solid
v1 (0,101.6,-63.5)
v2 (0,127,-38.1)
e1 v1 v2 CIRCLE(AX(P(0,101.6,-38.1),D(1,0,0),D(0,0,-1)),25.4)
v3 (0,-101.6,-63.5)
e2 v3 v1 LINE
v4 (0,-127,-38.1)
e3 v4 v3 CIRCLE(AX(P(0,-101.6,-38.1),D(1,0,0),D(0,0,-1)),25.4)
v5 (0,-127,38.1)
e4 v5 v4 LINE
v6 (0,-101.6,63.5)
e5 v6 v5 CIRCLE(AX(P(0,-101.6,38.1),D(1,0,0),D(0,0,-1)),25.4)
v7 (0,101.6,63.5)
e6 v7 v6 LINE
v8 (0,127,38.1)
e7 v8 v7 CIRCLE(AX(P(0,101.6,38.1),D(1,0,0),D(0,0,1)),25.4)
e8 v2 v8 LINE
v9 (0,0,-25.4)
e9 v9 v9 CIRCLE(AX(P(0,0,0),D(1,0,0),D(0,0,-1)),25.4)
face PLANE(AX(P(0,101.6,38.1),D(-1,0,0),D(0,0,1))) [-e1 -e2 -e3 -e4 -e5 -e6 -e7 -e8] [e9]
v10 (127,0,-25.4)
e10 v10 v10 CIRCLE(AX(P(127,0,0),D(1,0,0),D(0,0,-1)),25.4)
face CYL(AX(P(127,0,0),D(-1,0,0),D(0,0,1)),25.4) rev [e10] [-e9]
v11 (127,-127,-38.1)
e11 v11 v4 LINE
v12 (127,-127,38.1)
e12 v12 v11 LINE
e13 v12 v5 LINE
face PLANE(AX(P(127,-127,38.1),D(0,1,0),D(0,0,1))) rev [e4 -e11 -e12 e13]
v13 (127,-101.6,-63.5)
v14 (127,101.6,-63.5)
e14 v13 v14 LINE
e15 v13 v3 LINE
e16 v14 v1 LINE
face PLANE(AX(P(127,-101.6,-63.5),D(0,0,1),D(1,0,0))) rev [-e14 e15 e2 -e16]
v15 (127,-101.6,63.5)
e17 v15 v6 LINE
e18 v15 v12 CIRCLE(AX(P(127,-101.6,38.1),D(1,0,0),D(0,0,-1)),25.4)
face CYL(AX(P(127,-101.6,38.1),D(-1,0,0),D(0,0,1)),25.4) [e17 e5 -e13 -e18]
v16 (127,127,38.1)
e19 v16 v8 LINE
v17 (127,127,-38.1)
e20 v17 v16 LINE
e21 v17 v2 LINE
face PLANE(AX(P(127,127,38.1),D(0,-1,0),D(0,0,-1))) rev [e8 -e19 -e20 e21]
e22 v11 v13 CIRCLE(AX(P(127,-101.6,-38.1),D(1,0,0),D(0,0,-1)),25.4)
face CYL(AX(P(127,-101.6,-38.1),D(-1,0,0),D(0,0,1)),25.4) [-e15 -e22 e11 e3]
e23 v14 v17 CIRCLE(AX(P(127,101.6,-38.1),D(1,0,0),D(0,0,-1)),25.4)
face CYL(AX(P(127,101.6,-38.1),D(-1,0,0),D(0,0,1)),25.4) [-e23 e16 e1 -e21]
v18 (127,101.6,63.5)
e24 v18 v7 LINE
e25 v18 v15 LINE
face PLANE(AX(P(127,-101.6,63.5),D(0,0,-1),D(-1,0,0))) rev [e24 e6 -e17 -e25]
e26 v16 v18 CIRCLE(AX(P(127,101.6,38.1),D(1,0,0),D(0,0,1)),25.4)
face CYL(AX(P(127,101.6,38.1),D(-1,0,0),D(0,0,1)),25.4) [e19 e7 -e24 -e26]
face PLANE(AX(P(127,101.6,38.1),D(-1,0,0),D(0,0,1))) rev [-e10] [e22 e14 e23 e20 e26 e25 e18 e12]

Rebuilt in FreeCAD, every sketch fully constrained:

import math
import FreeCAD as App
import Part
import Sketcher

V = App.Vector
Q = App.Units.Quantity

doc = App.newDocument("Part")
body = doc.addObject("PartDesign::Body", "Body")

sketch1 = body.newObject("Sketcher::SketchObject", "Sketch")
sketch1.AttachmentSupport = (doc.getObject("YZ_Plane"), [""])
sketch1.MapMode = "FlatFace"
sketch1.addGeometry([
    Part.LineSegment(V(102, 64, 0), V(-102, 64, 0)),
    Part.ArcOfCircle(Part.Circle(V(-102, 38, 0), V(0, 0, 1), 25), math.radians(90), math.radians(180)),
    Part.LineSegment(V(-127, 38, 0), V(-127, -38, 0)),
    Part.ArcOfCircle(Part.Circle(V(-102, -38, 0), V(0, 0, 1), 25), math.radians(180), math.radians(270)),
    Part.LineSegment(V(-102, -64, 0), V(102, -64, 0)),
    Part.ArcOfCircle(Part.Circle(V(102, -38, 0), V(0, 0, 1), 25), math.radians(-90), math.radians(0)),
    Part.LineSegment(V(127, -38, 0), V(127, 38, 0)),
    Part.ArcOfCircle(Part.Circle(V(102, 38, 0), V(0, 0, 1), 25), math.radians(0), math.radians(90)),
    Part.Circle(V(0, 0, 0), V(0, 0, 1), 25),
], False)
sketch1.addConstraint([
    Sketcher.Constraint("Tangent", 0, 2, 1, 1),
    Sketcher.Constraint("Tangent", 1, 2, 2, 1),
    Sketcher.Constraint("Tangent", 2, 2, 3, 1),
    Sketcher.Constraint("Tangent", 3, 2, 4, 1),
    Sketcher.Constraint("Tangent", 4, 2, 5, 1),
    Sketcher.Constraint("Tangent", 5, 2, 6, 1),
    Sketcher.Constraint("Tangent", 6, 2, 7, 1),
    Sketcher.Constraint("Tangent", 7, 2, 0, 1),
    Sketcher.Constraint("Horizontal", 0),
    Sketcher.Constraint("Vertical", 2),
    Sketcher.Constraint("Horizontal", 4),
    Sketcher.Constraint("Vertical", 6),
    Sketcher.Constraint("Coincident", 8, 3, -1, 1),
    Sketcher.Constraint("Equal", 1, 3),
    Sketcher.Constraint("Equal", 3, 5),
    Sketcher.Constraint("Equal", 5, 7),
    Sketcher.Constraint("Equal", 7, 8),
    Sketcher.Constraint("Symmetric", 1, 3, 5, 3, -1, 1),
    Sketcher.Constraint("Diameter", 8, Q("2 in")),
    Sketcher.Constraint("DistanceX", 0, 2, 0, 1, Q("8 in")),
    Sketcher.Constraint("DistanceY", 2, 2, 2, 1, Q("3 in")),
])
pad1 = body.newObject("PartDesign::Pad", "Pad")
pad1.Profile = sketch1
pad1.Length = Q("5 in")

doc.recompute()
